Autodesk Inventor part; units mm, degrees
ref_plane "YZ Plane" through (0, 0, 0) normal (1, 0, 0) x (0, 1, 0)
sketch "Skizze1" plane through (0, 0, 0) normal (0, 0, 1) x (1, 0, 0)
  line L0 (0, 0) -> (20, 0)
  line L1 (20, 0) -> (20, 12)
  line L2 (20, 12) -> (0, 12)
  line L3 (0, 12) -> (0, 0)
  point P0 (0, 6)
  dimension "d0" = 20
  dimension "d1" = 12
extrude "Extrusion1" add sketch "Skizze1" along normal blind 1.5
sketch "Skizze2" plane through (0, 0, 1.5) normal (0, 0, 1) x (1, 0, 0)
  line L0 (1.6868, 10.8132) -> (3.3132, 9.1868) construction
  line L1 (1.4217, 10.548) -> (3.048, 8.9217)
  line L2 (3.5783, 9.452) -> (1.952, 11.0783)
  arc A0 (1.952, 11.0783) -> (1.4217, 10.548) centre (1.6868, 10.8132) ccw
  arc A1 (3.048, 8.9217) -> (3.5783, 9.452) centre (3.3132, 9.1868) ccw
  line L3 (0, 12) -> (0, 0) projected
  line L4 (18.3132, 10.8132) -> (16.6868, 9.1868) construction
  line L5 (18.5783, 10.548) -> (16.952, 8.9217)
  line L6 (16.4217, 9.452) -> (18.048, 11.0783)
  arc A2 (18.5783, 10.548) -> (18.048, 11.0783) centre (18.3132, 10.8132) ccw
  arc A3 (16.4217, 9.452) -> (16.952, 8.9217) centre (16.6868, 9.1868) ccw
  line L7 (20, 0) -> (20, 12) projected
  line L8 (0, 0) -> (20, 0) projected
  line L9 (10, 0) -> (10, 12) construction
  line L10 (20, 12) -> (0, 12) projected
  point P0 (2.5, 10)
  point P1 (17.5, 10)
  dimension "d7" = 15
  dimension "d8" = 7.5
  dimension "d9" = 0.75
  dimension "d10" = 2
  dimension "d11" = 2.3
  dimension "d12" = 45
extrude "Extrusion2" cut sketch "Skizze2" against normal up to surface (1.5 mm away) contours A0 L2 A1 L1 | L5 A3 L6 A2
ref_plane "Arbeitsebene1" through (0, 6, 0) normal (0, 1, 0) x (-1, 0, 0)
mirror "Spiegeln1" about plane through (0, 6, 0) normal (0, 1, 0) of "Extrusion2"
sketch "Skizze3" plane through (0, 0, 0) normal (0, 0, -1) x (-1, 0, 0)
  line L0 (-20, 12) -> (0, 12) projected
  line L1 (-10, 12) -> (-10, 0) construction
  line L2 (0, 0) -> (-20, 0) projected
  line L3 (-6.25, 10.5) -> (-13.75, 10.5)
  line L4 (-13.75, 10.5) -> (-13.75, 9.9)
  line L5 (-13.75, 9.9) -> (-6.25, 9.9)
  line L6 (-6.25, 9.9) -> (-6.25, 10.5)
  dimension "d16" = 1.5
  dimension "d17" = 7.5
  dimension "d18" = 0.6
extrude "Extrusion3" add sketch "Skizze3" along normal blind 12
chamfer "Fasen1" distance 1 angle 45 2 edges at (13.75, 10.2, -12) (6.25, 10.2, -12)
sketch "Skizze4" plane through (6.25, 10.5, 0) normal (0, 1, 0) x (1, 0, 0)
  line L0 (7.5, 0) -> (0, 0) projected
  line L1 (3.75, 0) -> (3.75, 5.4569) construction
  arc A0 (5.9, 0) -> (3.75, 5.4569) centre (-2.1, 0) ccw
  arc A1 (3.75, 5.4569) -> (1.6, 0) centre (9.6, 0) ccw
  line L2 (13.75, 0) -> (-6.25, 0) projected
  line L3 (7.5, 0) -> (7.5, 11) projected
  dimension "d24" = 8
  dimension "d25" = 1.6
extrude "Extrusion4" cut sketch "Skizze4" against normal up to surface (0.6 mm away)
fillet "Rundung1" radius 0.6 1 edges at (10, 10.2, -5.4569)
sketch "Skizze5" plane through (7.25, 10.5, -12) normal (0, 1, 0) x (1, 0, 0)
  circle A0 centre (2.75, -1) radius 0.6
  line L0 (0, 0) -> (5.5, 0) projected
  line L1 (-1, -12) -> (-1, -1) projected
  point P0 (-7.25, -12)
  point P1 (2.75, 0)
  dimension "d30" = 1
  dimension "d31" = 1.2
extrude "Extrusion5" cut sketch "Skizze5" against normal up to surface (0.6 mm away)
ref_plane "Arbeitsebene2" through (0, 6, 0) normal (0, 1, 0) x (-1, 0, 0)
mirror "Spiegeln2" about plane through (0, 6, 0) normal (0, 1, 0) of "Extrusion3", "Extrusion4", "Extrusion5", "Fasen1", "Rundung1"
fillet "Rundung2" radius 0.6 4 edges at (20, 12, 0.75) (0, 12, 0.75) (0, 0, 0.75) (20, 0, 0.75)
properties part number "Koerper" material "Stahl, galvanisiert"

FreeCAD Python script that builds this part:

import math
import FreeCAD as App
import Part
import Sketcher
Q = App.Units.Quantity


def edges_at(feature, points):
    """Names of the edges that pass closest to the given points."""
    edges = feature.Shape.Edges
    near = lambda p: min(range(len(edges)), key=lambda i: edges[i].distToShape(Part.Vertex(*p))[0])
    return sorted({f"Edge{near(p) + 1}" for p in points})

doc = App.newDocument("Part")
body = doc.addObject("PartDesign::Body", "Body")

# Sketch on XY plane
sketch1 = doc.addObject("Sketcher::SketchObject", "Sketch")
body.addObject(sketch1)
sketch1.AttachmentSupport = (doc.XY_Plane, [""])
sketch1.MapMode = "FlatFace"
sketch1.addGeometry(Part.LineSegment(App.Vector(0, 12, 0), App.Vector(0, 0, 0)), False)
sketch1.addGeometry(Part.LineSegment(App.Vector(0, 0, 0), App.Vector(20, 0, 0)), False)
sketch1.addGeometry(Part.LineSegment(App.Vector(20, 0, 0), App.Vector(20, 12, 0)), False)
sketch1.addGeometry(Part.LineSegment(App.Vector(20, 12, 0), App.Vector(0, 12, 0)), False)
sketch1.addConstraint(Sketcher.Constraint("Coincident", 0, 2, 1, 1))
sketch1.addConstraint(Sketcher.Constraint("Coincident", 1, 2, 2, 1))
sketch1.addConstraint(Sketcher.Constraint("Coincident", 2, 2, 3, 1))
sketch1.addConstraint(Sketcher.Constraint("Coincident", 3, 2, 0, 1))
sketch1.addConstraint(Sketcher.Constraint("Vertical", 0))
sketch1.addConstraint(Sketcher.Constraint("Horizontal", 1))
sketch1.addConstraint(Sketcher.Constraint("Vertical", 2))
sketch1.addConstraint(Sketcher.Constraint("Horizontal", 3))
sketch1.addConstraint(Sketcher.Constraint("Coincident", 0, 2, -1, 1))
sketch1.addConstraint(Sketcher.Constraint("DistanceX", 1, 1, 1, 2, Q("20 mm")))
sketch1.addConstraint(Sketcher.Constraint("DistanceY", 0, 2, 0, 1, Q("12 mm")))
pad1 = doc.addObject("PartDesign::Pad", "Pad")
body.addObject(pad1)
pad1.Profile = sketch1
pad1.Length = 1.5

# Sketch on XY plane
sketch2 = doc.addObject("Sketcher::SketchObject", "Sketch001")
body.addObject(sketch2)
sketch2.AttachmentSupport = (doc.XY_Plane, [""])
sketch2.MapMode = "FlatFace"
sketch2.AttachmentOffset = App.Placement(App.Vector(0, 0, 1.5), App.Rotation())
sketch2.addGeometry(Part.ArcOfCircle(Part.Circle(App.Vector(1.69, 10.81, 0), App.Vector(0, 0, 1), 0.37), math.radians(45), math.radians(225)), False)
sketch2.addGeometry(Part.LineSegment(App.Vector(1.42, 10.55, 0), App.Vector(3.05, 8.92, 0)), False)
sketch2.addGeometry(Part.ArcOfCircle(Part.Circle(App.Vector(3.31, 9.19, 0), App.Vector(0, 0, 1), 0.37), math.radians(-135), math.radians(45)), False)
sketch2.addGeometry(Part.LineSegment(App.Vector(3.58, 9.45, 0), App.Vector(1.95, 11.08, 0)), False)
sketch2.addGeometry(Part.LineSegment(App.Vector(16.95, 8.92, 0), App.Vector(18.58, 10.55, 0)), False)
sketch2.addGeometry(Part.ArcOfCircle(Part.Circle(App.Vector(18.31, 10.81, 0), App.Vector(0, 0, 1), 0.37), math.radians(-45), math.radians(135)), False)
sketch2.addGeometry(Part.LineSegment(App.Vector(18.05, 11.08, 0), App.Vector(16.42, 9.45, 0)), False)
sketch2.addGeometry(Part.ArcOfCircle(Part.Circle(App.Vector(16.69, 9.19, 0), App.Vector(0, 0, 1), 0.37), math.radians(135), math.radians(315)), False)
sketch2.addConstraint(Sketcher.Constraint("Tangent", 0, 2, 1, 1))
sketch2.addConstraint(Sketcher.Constraint("Tangent", 1, 2, 2, 1))
sketch2.addConstraint(Sketcher.Constraint("Tangent", 2, 2, 3, 1))
sketch2.addConstraint(Sketcher.Constraint("Tangent", 3, 2, 0, 1))
sketch2.addConstraint(Sketcher.Constraint("Tangent", 4, 2, 5, 1))
sketch2.addConstraint(Sketcher.Constraint("Tangent", 5, 2, 6, 1))
sketch2.addConstraint(Sketcher.Constraint("Tangent", 6, 2, 7, 1))
sketch2.addConstraint(Sketcher.Constraint("Tangent", 7, 2, 4, 1))
sketch2.addConstraint(Sketcher.Constraint("Equal", 0, 2))
sketch2.addConstraint(Sketcher.Constraint("Equal", 2, 5))
sketch2.addConstraint(Sketcher.Constraint("Equal", 5, 7))
sketch2.addConstraint(Sketcher.Constraint("Perpendicular", 3, 4))
sketch2.addConstraint(Sketcher.Constraint("Horizontal", 0, 3, 5, 3))
sketch2.addConstraint(Sketcher.Constraint("Horizontal", 2, 3, 7, 3))
sketch2.addConstraint(Sketcher.Constraint("Horizontal", 0, 2, 4, 2))
sketch2.addConstraint(Sketcher.Constraint("Radius", 0, Q("0.375 mm")))
sketch2.addConstraint(Sketcher.Constraint("DistanceX", 2, 3, 5, 3, Q("15 mm")))
sketch2.addConstraint(Sketcher.Constraint("Distance", 1, Q("2.3 mm")))
sketch2.addConstraint(Sketcher.Constraint("DistanceY", -1, 1, 0, 2, Q("10.548 mm")))
sketch2.addConstraint(Sketcher.Constraint("DistanceX", -1, 1, 1, 2, Q("3.048 mm")))
pocket1 = doc.addObject("PartDesign::Pocket", "Pocket")
body.addObject(pocket1)
pocket1.Profile = sketch2
pocket1.Length = 1.5
doc.recompute()

datumplane = doc.addObject("PartDesign::Plane", "DatumPlane")
body.addObject(datumplane)
datumplane.AttachmentSupport = (doc.XZ_Plane, [""])
datumplane.MapMode = "FlatFace"
datumplane.AttachmentOffset = App.Placement(App.Vector(0, 0, -6), App.Rotation())
mirrored = doc.addObject("PartDesign::Mirrored", "Mirrored")
body.addObject(mirrored)
mirrored.Originals = [pocket1]
mirrored.MirrorPlane = (datumplane, [""])
body.Tip = mirrored

# Sketch on XY plane
sketch3 = doc.addObject("Sketcher::SketchObject", "Sketch002")
body.addObject(sketch3)
sketch3.AttachmentSupport = (doc.XY_Plane, [""])
sketch3.MapMode = "FlatFace"
sketch3.addGeometry(Part.LineSegment(App.Vector(6.2, 9.9, 0), App.Vector(6.2, 10.5, 0)), False)
sketch3.addGeometry(Part.LineSegment(App.Vector(6.2, 10.5, 0), App.Vector(13.8, 10.5, 0)), False)
sketch3.addGeometry(Part.LineSegment(App.Vector(13.8, 10.5, 0), App.Vector(13.8, 9.9, 0)), False)
sketch3.addGeometry(Part.LineSegment(App.Vector(13.8, 9.9, 0), App.Vector(6.2, 9.9, 0)), False)
sketch3.addConstraint(Sketcher.Constraint("Coincident", 0, 2, 1, 1))
sketch3.addConstraint(Sketcher.Constraint("Coincident", 1, 2, 2, 1))
sketch3.addConstraint(Sketcher.Constraint("Coincident", 2, 2, 3, 1))
sketch3.addConstraint(Sketcher.Constraint("Coincident", 3, 2, 0, 1))
sketch3.addConstraint(Sketcher.Constraint("Vertical", 0))
sketch3.addConstraint(Sketcher.Constraint("Horizontal", 1))
sketch3.addConstraint(Sketcher.Constraint("Vertical", 2))
sketch3.addConstraint(Sketcher.Constraint("Horizontal", 3))
sketch3.addConstraint(Sketcher.Constraint("DistanceX", 1, 1, 1, 2, Q("7.5 mm")))
sketch3.addConstraint(Sketcher.Constraint("DistanceY", 0, 1, 0, 2, Q("0.6 mm")))
sketch3.addConstraint(Sketcher.Constraint("DistanceY", -1, 1, 0, 2, Q("10.5 mm")))
sketch3.addConstraint(Sketcher.Constraint("DistanceX", -1, 1, 0, 2, Q("6.25 mm")))
pad2 = doc.addObject("PartDesign::Pad", "Pad001")
body.addObject(pad2)
pad2.Profile = sketch3
pad2.Length = 12
pad2.Reversed = True
doc.recompute()

chamfer = doc.addObject("PartDesign::Chamfer", "Chamfer")
body.addObject(chamfer)
chamfer.Base = (pad2, edges_at(pad2, [(13.75, 10.2, -12), (6.25, 10.2, -12)]))
chamfer.Size = 1

# Sketch on XZ plane
sketch4 = doc.addObject("Sketcher::SketchObject", "Sketch003")
body.addObject(sketch4)
sketch4.AttachmentSupport = (doc.XZ_Plane, [""])
sketch4.MapMode = "FlatFace"
sketch4.AttachmentOffset = App.Placement(App.Vector(0, 0, -10.5), App.Rotation())
sketch4.addGeometry(Part.LineSegment(App.Vector(7.8, 0, 0), App.Vector(12.2, 0, 0)), False)
sketch4.addGeometry(Part.ArcOfCircle(Part.Circle(App.Vector(4.2, 0, 0), App.Vector(0, 0, 1), 8), math.radians(-43), math.radians(0)), False)
sketch4.addGeometry(Part.ArcOfCircle(Part.Circle(App.Vector(15.8, 0, 0), App.Vector(0, 0, 1), 8), math.radians(180), math.radians(223)), False)
sketch4.addConstraint(Sketcher.Constraint("Coincident", 0, 2, 1, 2))
sketch4.addConstraint(Sketcher.Constraint("Coincident", 1, 1, 2, 2))
sketch4.addConstraint(Sketcher.Constraint("Coincident", 2, 1, 0, 1))
sketch4.addConstraint(Sketcher.Constraint("Horizontal", 0))
sketch4.addConstraint(Sketcher.Constraint("Equal", 1, 2))
sketch4.addConstraint(Sketcher.Constraint("PointOnObject", 1, 3, -1))
sketch4.addConstraint(Sketcher.Constraint("PointOnObject", 2, 3, -1))
sketch4.addConstraint(Sketcher.Constraint("PointOnObject", 0, 2, -1))
sketch4.addConstraint(Sketcher.Constraint("Radius", 1, Q("8 mm")))
sketch4.addConstraint(Sketcher.Constraint("DistanceX", 0, 1, 0, 2, Q("4.3 mm")))
sketch4.addConstraint(Sketcher.Constraint("DistanceX", -1, 1, 1, 1, Q("10 mm")))
pocket2 = doc.addObject("PartDesign::Pocket", "Pocket001")
body.addObject(pocket2)
pocket2.Profile = sketch4
pocket2.Length = 0.6
pocket2.Reversed = True
doc.recompute()

fillet = doc.addObject("PartDesign::Fillet", "Fillet")
body.addObject(fillet)
fillet.Base = (pocket2, edges_at(pocket2, [(10, 10.2, -5.457)]))
fillet.Radius = 0.6

# Sketch on XZ plane
sketch5 = doc.addObject("Sketcher::SketchObject", "Sketch004")
body.addObject(sketch5)
sketch5.AttachmentSupport = (doc.XZ_Plane, [""])
sketch5.MapMode = "FlatFace"
sketch5.AttachmentOffset = App.Placement(App.Vector(0, 0, -10.5), App.Rotation())
sketch5.addGeometry(Part.Circle(App.Vector(10, -11, 0), App.Vector(0, 0, 1), 0.6), False)
sketch5.addConstraint(Sketcher.Constraint("Diameter", 0, Q("1.2 mm")))
sketch5.addConstraint(Sketcher.Constraint("DistanceX", -1, 1, 0, 3, Q("10 mm")))
sketch5.addConstraint(Sketcher.Constraint("DistanceY", 0, 3, -1, 1, Q("11 mm")))
pocket3 = doc.addObject("PartDesign::Pocket", "Pocket002")
body.addObject(pocket3)
pocket3.Profile = sketch5
pocket3.Length = 0.6
pocket3.Reversed = True
doc.recompute()

datumplane2 = doc.addObject("PartDesign::Plane", "DatumPlane001")
body.addObject(datumplane2)
datumplane2.AttachmentSupport = (doc.XZ_Plane, [""])
datumplane2.MapMode = "FlatFace"
datumplane2.AttachmentOffset = App.Placement(App.Vector(0, 0, -6), App.Rotation())
mirrored2 = doc.addObject("PartDesign::Mirrored", "Mirrored001")
body.addObject(mirrored2)
mirrored2.Originals = [pad2, pocket2, pocket3, chamfer, fillet]
mirrored2.MirrorPlane = (datumplane2, [""])
body.Tip = mirrored2
doc.recompute()

fillet2 = doc.addObject("PartDesign::Fillet", "Fillet001")
body.addObject(fillet2)
fillet2.Base = (mirrored2, edges_at(mirrored2, [
    (20, 12, 0.75),
    (0, 12, 0.75),
    (0, 0, 0.75),
    (20, 0, 0.75),
]))
fillet2.Radius = 0.6

doc.recompute()
